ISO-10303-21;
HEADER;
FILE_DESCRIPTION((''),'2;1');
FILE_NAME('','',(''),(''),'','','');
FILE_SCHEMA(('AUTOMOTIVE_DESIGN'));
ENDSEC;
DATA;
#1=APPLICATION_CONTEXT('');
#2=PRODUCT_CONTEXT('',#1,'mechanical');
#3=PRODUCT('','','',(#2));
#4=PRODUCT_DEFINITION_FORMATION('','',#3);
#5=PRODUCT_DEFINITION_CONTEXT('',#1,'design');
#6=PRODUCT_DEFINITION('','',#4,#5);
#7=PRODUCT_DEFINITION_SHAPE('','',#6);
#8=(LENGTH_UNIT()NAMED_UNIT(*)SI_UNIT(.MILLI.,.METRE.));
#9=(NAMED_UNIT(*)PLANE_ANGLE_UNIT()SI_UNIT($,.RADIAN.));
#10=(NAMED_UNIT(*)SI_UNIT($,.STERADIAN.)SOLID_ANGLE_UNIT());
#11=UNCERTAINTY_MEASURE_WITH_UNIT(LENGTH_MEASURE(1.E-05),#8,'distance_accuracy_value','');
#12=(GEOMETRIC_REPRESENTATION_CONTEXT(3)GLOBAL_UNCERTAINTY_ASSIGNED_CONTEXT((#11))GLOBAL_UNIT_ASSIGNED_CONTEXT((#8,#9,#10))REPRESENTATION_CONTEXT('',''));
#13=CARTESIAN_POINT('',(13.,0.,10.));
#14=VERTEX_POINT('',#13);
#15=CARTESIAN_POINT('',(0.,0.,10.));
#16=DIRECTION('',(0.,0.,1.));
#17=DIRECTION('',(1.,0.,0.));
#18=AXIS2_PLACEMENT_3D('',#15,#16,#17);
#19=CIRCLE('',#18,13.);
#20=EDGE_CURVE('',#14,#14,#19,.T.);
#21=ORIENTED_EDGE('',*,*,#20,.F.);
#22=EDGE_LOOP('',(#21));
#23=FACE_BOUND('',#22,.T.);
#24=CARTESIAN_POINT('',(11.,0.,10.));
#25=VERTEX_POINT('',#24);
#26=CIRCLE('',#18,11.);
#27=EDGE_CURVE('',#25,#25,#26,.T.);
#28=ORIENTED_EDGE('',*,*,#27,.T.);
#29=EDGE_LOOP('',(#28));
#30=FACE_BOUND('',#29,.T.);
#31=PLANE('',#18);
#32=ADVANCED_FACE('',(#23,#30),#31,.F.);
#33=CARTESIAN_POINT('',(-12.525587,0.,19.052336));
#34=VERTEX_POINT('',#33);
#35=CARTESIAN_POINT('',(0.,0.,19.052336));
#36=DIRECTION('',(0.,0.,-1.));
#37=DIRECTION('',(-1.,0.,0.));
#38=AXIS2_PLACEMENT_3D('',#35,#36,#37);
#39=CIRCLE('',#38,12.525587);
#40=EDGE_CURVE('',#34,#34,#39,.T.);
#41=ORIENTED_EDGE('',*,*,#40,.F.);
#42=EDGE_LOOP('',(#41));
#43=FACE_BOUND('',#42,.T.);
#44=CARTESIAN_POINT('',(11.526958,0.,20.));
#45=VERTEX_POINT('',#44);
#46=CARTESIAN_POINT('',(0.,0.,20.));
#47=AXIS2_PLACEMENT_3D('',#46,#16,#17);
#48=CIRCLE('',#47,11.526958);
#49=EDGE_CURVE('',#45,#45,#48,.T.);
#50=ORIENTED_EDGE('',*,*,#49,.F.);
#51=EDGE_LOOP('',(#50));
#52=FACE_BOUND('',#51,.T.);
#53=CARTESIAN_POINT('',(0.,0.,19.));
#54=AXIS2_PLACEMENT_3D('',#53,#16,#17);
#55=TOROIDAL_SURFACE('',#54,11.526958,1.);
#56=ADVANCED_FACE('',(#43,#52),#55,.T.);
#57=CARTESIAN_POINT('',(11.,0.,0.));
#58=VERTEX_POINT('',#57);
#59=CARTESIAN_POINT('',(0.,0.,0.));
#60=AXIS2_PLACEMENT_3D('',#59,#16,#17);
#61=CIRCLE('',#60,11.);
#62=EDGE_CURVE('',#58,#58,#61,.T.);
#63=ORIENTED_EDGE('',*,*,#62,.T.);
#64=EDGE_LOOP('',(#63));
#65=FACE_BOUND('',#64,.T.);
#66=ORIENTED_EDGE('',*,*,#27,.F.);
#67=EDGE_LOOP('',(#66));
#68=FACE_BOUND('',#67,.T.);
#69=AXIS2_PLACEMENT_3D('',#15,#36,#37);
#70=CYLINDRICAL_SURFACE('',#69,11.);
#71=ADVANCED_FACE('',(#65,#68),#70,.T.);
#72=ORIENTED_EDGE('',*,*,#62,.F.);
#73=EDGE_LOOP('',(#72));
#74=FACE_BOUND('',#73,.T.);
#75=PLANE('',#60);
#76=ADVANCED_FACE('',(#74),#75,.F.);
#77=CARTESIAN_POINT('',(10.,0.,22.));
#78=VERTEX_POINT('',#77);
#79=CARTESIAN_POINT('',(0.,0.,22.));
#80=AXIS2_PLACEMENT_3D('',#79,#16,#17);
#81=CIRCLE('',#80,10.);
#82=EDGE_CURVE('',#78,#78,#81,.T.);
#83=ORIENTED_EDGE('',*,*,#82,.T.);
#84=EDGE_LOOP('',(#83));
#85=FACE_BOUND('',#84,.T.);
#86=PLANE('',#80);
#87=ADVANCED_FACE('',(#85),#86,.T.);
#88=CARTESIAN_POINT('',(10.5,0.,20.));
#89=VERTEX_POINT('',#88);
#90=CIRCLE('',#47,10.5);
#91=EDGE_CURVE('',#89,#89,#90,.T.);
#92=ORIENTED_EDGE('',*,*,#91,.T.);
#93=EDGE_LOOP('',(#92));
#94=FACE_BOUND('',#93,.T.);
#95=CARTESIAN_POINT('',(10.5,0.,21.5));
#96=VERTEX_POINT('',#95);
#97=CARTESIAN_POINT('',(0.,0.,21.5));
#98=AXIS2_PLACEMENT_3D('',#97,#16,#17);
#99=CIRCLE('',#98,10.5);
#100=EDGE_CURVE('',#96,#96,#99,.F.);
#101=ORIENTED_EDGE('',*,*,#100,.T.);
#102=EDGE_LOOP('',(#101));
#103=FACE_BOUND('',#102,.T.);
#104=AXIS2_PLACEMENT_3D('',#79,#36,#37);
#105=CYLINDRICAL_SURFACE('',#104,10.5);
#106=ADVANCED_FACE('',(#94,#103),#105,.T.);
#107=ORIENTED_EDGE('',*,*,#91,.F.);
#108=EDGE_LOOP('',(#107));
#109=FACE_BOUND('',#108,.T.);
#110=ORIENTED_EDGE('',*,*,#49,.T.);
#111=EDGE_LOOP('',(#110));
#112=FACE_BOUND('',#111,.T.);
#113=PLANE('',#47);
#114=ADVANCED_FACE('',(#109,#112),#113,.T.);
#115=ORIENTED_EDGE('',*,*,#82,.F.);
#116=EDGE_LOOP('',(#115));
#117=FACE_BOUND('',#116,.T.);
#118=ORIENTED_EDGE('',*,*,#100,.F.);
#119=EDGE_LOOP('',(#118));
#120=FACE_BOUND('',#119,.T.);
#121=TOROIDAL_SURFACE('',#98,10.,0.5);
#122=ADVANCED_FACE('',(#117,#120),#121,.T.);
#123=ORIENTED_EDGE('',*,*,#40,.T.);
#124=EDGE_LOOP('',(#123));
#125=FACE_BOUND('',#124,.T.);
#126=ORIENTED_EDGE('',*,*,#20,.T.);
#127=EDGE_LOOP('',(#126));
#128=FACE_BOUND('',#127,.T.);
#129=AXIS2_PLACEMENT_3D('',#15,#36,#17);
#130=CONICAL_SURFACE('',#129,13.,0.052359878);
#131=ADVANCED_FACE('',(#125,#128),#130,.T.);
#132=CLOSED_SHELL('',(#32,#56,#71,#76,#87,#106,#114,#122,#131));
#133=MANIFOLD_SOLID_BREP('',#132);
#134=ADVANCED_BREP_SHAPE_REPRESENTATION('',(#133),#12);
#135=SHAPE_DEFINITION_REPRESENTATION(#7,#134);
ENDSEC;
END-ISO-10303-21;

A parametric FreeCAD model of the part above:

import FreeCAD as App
import Part
import Sketcher


def edges_at(feature, points):
    """Names of the edges that pass closest to the given points."""
    edges = feature.Shape.Edges
    near = lambda p: min(range(len(edges)), key=lambda i: edges[i].distToShape(Part.Vertex(*p))[0])
    return sorted({f"Edge{near(p) + 1}" for p in points})

doc = App.newDocument("Part")
body = doc.addObject("PartDesign::Body", "Body")

sketch1 = body.newObject("Sketcher::SketchObject", "Sketch")
sketch1.AttachmentSupport = (doc.getObject("XY_Plane"), [""])
sketch1.MapMode = "FlatFace"
sketch1.addGeometry(Part.Circle(App.Vector(0, 0, 0), App.Vector(0, 0, 1), 11), False)
sketch1.addConstraint(Sketcher.Constraint("Coincident", 0, 3, -1, 1))
sketch1.addConstraint(Sketcher.Constraint("Diameter", 0, 22.0))
pad1 = body.newObject("PartDesign::Pad", "Pad")
pad1.Profile = sketch1
pad1.Length = 10

sketch2 = body.newObject("Sketcher::SketchObject", "Sketch001")
sketch2.AttachmentSupport = (doc.getObject("XY_Plane"), [""])
sketch2.MapMode = "FlatFace"
sketch2.AttachmentOffset = App.Placement(App.Vector(0, 0, 10), App.Rotation())
sketch2.addGeometry(Part.Circle(App.Vector(0, 0, 0), App.Vector(0, 0, 1), 13), False)
sketch2.addConstraint(Sketcher.Constraint("Coincident", 0, 3, -1, 1))
sketch2.addConstraint(Sketcher.Constraint("Diameter", 0, 26.0))
pad2 = body.newObject("PartDesign::Pad", "Pad001")
pad2.Profile = sketch2
pad2.Length = 10
pad2.TaperAngle = -3
doc.recompute()

fillet = body.newObject("PartDesign::Fillet", "Fillet")
fillet.Base = (pad2, edges_at(pad2, [(-12.476, 0, 20)]))
fillet.Radius = 1

sketch3 = body.newObject("Sketcher::SketchObject", "Sketch002")
sketch3.AttachmentSupport = (doc.getObject("XY_Plane"), [""])
sketch3.MapMode = "FlatFace"
sketch3.AttachmentOffset = App.Placement(App.Vector(0, 0, 20), App.Rotation())
sketch3.addGeometry(Part.Circle(App.Vector(0, 0, 0), App.Vector(0, 0, 1), 10), False)
sketch3.addConstraint(Sketcher.Constraint("Coincident", 0, 3, -1, 1))
sketch3.addConstraint(Sketcher.Constraint("Diameter", 0, 21.0))
pad3 = body.newObject("PartDesign::Pad", "Pad002")
pad3.Profile = sketch3
pad3.Length = 2
doc.recompute()

fillet2 = body.newObject("PartDesign::Fillet", "Fillet001")
fillet2.Base = (pad3, edges_at(pad3, [(-10.5, 0, 22)]))
fillet2.Radius = 0.5

doc.recompute()
